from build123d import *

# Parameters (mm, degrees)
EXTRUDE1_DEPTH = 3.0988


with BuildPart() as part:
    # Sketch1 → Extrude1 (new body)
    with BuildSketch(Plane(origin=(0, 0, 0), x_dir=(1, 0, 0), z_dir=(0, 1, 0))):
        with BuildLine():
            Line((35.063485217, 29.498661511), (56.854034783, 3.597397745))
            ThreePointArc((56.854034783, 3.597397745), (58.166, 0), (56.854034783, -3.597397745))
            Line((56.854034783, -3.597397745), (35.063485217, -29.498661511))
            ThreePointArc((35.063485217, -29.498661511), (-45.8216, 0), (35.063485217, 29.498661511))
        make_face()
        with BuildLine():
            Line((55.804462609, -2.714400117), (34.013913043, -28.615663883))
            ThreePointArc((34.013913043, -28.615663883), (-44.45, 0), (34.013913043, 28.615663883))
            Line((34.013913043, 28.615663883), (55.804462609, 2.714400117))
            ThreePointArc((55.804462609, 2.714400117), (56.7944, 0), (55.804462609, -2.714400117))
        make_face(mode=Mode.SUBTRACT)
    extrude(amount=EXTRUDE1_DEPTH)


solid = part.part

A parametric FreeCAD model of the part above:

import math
import FreeCAD as App
import Part
import Sketcher
Q = App.Units.Quantity

doc = App.newDocument("Part")
body = doc.addObject("PartDesign::Body", "Body")

# Sketch on XZ plane
sketch1 = body.newObject("Sketcher::SketchObject", "Sketch")
sketch1.AttachmentSupport = (doc.getObject("XZ_Plane"), [""])
sketch1.MapMode = "FlatFace"
sketch1.addGeometry([
    Part.LineSegment(App.Vector(56.9, -3.6, 0), App.Vector(35.1, -29.5, 0)),  # 0
    Part.ArcOfCircle(Part.Circle(App.Vector(0, 0, 0), App.Vector(0, 0, 1), 45.8), math.radians(40), math.radians(320)),  # 1
    Part.LineSegment(App.Vector(35.1, 29.5, 0), App.Vector(56.9, 3.6, 0)),  # 2
    Part.ArcOfCircle(Part.Circle(App.Vector(52.6, 0, 0), App.Vector(0, 0, 1), 5.6), math.radians(-40), math.radians(40)),  # 3
    Part.LineSegment(App.Vector(55.8, 2.7, 0), App.Vector(34, 28.6, 0)),  # 4
    Part.ArcOfCircle(Part.Circle(App.Vector(0, 0, 0), App.Vector(0, 0, 1), 44.5), math.radians(40), math.radians(320)),  # 5
    Part.LineSegment(App.Vector(34, -28.6, 0), App.Vector(55.8, -2.7, 0)),  # 6
    Part.ArcOfCircle(Part.Circle(App.Vector(52.6, 0, 0), App.Vector(0, 0, 1), 4.2), math.radians(-40), math.radians(40)),  # 7
], False)
sketch1.addConstraint([
    Sketcher.Constraint("Tangent", 0, 2, 1, 2),
    Sketcher.Constraint("Tangent", 1, 1, 2, 1),
    Sketcher.Constraint("Tangent", 2, 2, 3, 2),
    Sketcher.Constraint("Tangent", 3, 1, 0, 1),
    Sketcher.Constraint("Tangent", 4, 2, 5, 1),
    Sketcher.Constraint("Tangent", 5, 2, 6, 1),
    Sketcher.Constraint("Tangent", 6, 2, 7, 1),
    Sketcher.Constraint("Tangent", 7, 2, 4, 1),
    Sketcher.Constraint("Coincident", 1, 3, -1, 1),
    Sketcher.Constraint("Coincident", 5, 3, -1, 1),
    Sketcher.Constraint("Coincident", 7, 3, 3, 3),
    Sketcher.Constraint("PointOnObject", 3, 3, -1),
    Sketcher.Constraint("Parallel", 2, 4),
    Sketcher.Constraint("Radius", 3, Q("0.22 in")),
    Sketcher.Constraint("Radius", 5, Q("1.75 in")),
    Sketcher.Constraint("Radius", 1, Q("1.804 in")),
    Sketcher.Constraint("DistanceX", -1, 1, 3, 3, Q("2.07 in")),
])
pad1 = body.newObject("PartDesign::Pad", "Pad")
pad1.Profile = sketch1
pad1.Length = Q("0.122 in")
pad1.Reversed = True

doc.recompute()
